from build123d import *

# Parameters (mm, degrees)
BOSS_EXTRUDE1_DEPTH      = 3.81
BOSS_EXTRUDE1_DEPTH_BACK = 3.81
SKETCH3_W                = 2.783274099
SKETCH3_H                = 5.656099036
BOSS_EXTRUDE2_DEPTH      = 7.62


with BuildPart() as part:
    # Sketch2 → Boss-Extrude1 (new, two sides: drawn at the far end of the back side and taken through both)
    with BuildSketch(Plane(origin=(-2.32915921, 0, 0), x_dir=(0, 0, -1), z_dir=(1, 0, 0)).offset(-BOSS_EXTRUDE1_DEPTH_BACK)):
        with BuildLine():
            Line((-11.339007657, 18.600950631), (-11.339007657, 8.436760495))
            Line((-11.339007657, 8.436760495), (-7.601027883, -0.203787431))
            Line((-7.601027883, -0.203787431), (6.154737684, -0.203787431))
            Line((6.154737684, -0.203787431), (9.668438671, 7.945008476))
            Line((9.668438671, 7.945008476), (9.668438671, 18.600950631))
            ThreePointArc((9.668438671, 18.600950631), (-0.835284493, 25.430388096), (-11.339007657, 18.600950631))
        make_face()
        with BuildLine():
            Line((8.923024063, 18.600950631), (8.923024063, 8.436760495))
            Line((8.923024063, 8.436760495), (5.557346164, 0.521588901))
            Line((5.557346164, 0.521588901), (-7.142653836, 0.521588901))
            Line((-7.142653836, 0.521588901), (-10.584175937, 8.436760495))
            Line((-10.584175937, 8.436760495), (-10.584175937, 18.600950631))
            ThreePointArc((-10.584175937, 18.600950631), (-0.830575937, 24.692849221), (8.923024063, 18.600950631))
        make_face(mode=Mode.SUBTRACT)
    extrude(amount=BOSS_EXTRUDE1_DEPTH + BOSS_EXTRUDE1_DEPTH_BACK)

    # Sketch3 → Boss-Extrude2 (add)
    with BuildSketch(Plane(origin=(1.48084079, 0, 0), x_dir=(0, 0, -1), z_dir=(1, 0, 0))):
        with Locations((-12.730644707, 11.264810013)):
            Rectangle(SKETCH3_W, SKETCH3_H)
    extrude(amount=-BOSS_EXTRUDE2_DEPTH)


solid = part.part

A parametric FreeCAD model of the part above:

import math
import FreeCAD as App
import Part
import Sketcher
Q = App.Units.Quantity

doc = App.newDocument("Part")
params = doc.addObject("Spreadsheet::Sheet", "Params")
for row, (alias, value) in enumerate([
    ("sketch1_height", "0.5 in"),
    ("sketch1_height2", "0.384 in"),
    ("pad1_length", "0.15 in"),
    ("pad1_length2", "0.15 in"),
    ("pad2_length", "0.3 in"),
], start=1):
    params.set(f"A{row}", alias)
    params.set(f"B{row}", "=" + value)
    params.setAlias(f"B{row}", alias)

body = doc.addObject("PartDesign::Body", "Body")

# Sketch on YZ plane
sketch1 = body.newObject("Sketcher::SketchObject", "Sketch")
sketch1.AttachmentSupport = (doc.getObject("YZ_Plane"), [""])
sketch1.MapMode = "FlatFace"
sketch1.AttachmentOffset = App.Placement(App.Vector(0, 0, -2.329159), App.Rotation())
sketch1.addGeometry(Part.LineSegment(App.Vector(19, 11, 0), App.Vector(8, 11, 0)), False)
sketch1.addGeometry(Part.LineSegment(App.Vector(8, 11, 0), App.Vector(0, 8, 0)), False)
sketch1.addGeometry(Part.LineSegment(App.Vector(0, 8, 0), App.Vector(0, -6, 0)), False)
sketch1.addGeometry(Part.LineSegment(App.Vector(0, -6, 0), App.Vector(8, -10, 0)), False)
sketch1.addGeometry(Part.LineSegment(App.Vector(8, -10, 0), App.Vector(19, -10, 0)), False)
sketch1.addGeometry(Part.ArcOfCircle(Part.Circle(App.Vector(14, 1, 0), App.Vector(0, 0, 1), 11), math.radians(-66), math.radians(66)), False)
sketch1.addGeometry(Part.ArcOfCircle(Part.Circle(App.Vector(14, 1, 0), App.Vector(0, 0, 1), 11), math.radians(-64), math.radians(64)), False)
sketch1.addGeometry(Part.LineSegment(App.Vector(19, -9, 0), App.Vector(8, -9, 0)), False)
sketch1.addGeometry(Part.LineSegment(App.Vector(8, -9, 0), App.Vector(1, -6, 0)), False)
sketch1.addGeometry(Part.LineSegment(App.Vector(1, -6, 0), App.Vector(1, 7, 0)), False)
sketch1.addGeometry(Part.LineSegment(App.Vector(1, 7, 0), App.Vector(8, 11, 0)), False)
sketch1.addGeometry(Part.LineSegment(App.Vector(8, 11, 0), App.Vector(19, 11, 0)), False)
sketch1.addConstraint(Sketcher.Constraint("Coincident", 0, 2, 1, 1))
sketch1.addConstraint(Sketcher.Constraint("Coincident", 1, 2, 2, 1))
sketch1.addConstraint(Sketcher.Constraint("Coincident", 2, 2, 3, 1))
sketch1.addConstraint(Sketcher.Constraint("Coincident", 3, 2, 4, 1))
sketch1.addConstraint(Sketcher.Constraint("Coincident", 4, 2, 5, 1))
sketch1.addConstraint(Sketcher.Constraint("Coincident", 5, 2, 0, 1))
sketch1.addConstraint(Sketcher.Constraint("Coincident", 6, 1, 7, 1))
sketch1.addConstraint(Sketcher.Constraint("Coincident", 7, 2, 8, 1))
sketch1.addConstraint(Sketcher.Constraint("Coincident", 8, 2, 9, 1))
sketch1.addConstraint(Sketcher.Constraint("Coincident", 9, 2, 10, 1))
sketch1.addConstraint(Sketcher.Constraint("Coincident", 10, 2, 11, 1))
sketch1.addConstraint(Sketcher.Constraint("Coincident", 11, 2, 6, 2))
sketch1.addConstraint(Sketcher.Constraint("Horizontal", 0))
sketch1.addConstraint(Sketcher.Constraint("Vertical", 2))
sketch1.addConstraint(Sketcher.Constraint("Horizontal", 4))
sketch1.addConstraint(Sketcher.Constraint("Horizontal", 7))
sketch1.addConstraint(Sketcher.Constraint("Vertical", 9))
sketch1.addConstraint(Sketcher.Constraint("Horizontal", 11))
sketch1.addConstraint(Sketcher.Constraint("Vertical", 4, 2, 5, 2))
sketch1.addConstraint(Sketcher.Constraint("Vertical", 5, 2, 6, 1))
sketch1.addConstraint(Sketcher.Constraint("Vertical", 0, 2, 7, 2))
sketch1.addConstraint(Sketcher.Constraint("Vertical", 7, 2, 10, 2))
sketch1.addConstraint(Sketcher.Constraint("Vertical", 6, 1, 11, 2))
sketch1.addConstraint(Sketcher.Constraint("DistanceY", 9, 1, 9, 2, Q("0.5 in")))
sketch1.addConstraint(Sketcher.Constraint("Radius", 5, Q("11.492119 mm")))
sketch1.addConstraint(Sketcher.Constraint("DistanceY", 6, 1, 6, 3, Q("0.384 in")))
sketch1.addConstraint(Sketcher.Constraint("DistanceY", -1, 1, 6, 3, Q("0.0326998 in")))
sketch1.addConstraint(Sketcher.Constraint("Radius", 6, Q("10.854083 mm")))
sketch1.addConstraint(Sketcher.Constraint("DistanceX", 0, 2, 0, 1, Q("10.16419 mm")))
sketch1.addConstraint(Sketcher.Constraint("DistanceY", 3, 2, 2, 2, Q("3.513701 mm")))
sketch1.addConstraint(Sketcher.Constraint("Distance", 3, Q("8.874062 mm")))
sketch1.addConstraint(Sketcher.Constraint("Distance", 8, Q("8.601031 mm")))
sketch1.addConstraint(Sketcher.Constraint("Distance", 10, Q("8.630992 mm")))
sketch1.addConstraint(Sketcher.Constraint("DistanceX", 4, 1, 4, 2, Q("10.655942 mm")))
sketch1.addConstraint(Sketcher.Constraint("DistanceY", 2, 2, 2, 1, Q("13.755766 mm")))
sketch1.addConstraint(Sketcher.Constraint("DistanceX", -1, 1, 5, 3, Q("13.938269 mm")))
sketch1.addConstraint(Sketcher.Constraint("DistanceX", -1, 1, 0, 2, Q("8.43676 mm")))
sketch1.addConstraint(Sketcher.Constraint("DistanceY", 3, 2, -1, 1, Q("9.668439 mm")))
sketch1.setExpression("Constraints[23]", "Params.sketch1_height")
sketch1.setExpression("Constraints[25]", "Params.sketch1_height2")
pad1 = body.newObject("PartDesign::Pad", "Pad")
pad1.Profile = sketch1
pad1.Type = "TwoLengths"
pad1.setExpression("Length", "Params.pad1_length")
pad1.setExpression("Length2", "Params.pad1_length2")

# Sketch on YZ plane
sketch2 = body.newObject("Sketcher::SketchObject", "Sketch001")
sketch2.AttachmentSupport = (doc.getObject("YZ_Plane"), [""])
sketch2.MapMode = "FlatFace"
sketch2.AttachmentOffset = App.Placement(App.Vector(0, 0, 1.480841), App.Rotation())
sketch2.addGeometry(Part.LineSegment(App.Vector(14.1, 14.1, 0), App.Vector(8.4, 14.1, 0)), False)
sketch2.addGeometry(Part.LineSegment(App.Vector(8.4, 14.1, 0), App.Vector(8.4, 11.3, 0)), False)
sketch2.addGeometry(Part.LineSegment(App.Vector(8.4, 11.3, 0), App.Vector(14.1, 11.3, 0)), False)
sketch2.addGeometry(Part.LineSegment(App.Vector(14.1, 11.3, 0), App.Vector(14.1, 14.1, 0)), False)
sketch2.addConstraint(Sketcher.Constraint("Coincident", 0, 2, 1, 1))
sketch2.addConstraint(Sketcher.Constraint("Coincident", 1, 2, 2, 1))
sketch2.addConstraint(Sketcher.Constraint("Coincident", 2, 2, 3, 1))
sketch2.addConstraint(Sketcher.Constraint("Coincident", 3, 2, 0, 1))
sketch2.addConstraint(Sketcher.Constraint("Horizontal", 0))
sketch2.addConstraint(Sketcher.Constraint("Vertical", 1))
sketch2.addConstraint(Sketcher.Constraint("Horizontal", 2))
sketch2.addConstraint(Sketcher.Constraint("Vertical", 3))
sketch2.addConstraint(Sketcher.Constraint("DistanceX", 0, 2, 0, 1, Q("5.656099 mm")))
sketch2.addConstraint(Sketcher.Constraint("DistanceY", 1, 2, 1, 1, Q("2.783274 mm")))
sketch2.addConstraint(Sketcher.Constraint("DistanceX", -1, 1, 0, 2, Q("8.43676 mm")))
sketch2.addConstraint(Sketcher.Constraint("DistanceY", -1, 1, 0, 2, Q("14.122282 mm")))
pad2 = body.newObject("PartDesign::Pad", "Pad001")
pad2.Profile = sketch2
pad2.setExpression("Length", "Params.pad2_length")
pad2.Reversed = True

doc.recompute()
